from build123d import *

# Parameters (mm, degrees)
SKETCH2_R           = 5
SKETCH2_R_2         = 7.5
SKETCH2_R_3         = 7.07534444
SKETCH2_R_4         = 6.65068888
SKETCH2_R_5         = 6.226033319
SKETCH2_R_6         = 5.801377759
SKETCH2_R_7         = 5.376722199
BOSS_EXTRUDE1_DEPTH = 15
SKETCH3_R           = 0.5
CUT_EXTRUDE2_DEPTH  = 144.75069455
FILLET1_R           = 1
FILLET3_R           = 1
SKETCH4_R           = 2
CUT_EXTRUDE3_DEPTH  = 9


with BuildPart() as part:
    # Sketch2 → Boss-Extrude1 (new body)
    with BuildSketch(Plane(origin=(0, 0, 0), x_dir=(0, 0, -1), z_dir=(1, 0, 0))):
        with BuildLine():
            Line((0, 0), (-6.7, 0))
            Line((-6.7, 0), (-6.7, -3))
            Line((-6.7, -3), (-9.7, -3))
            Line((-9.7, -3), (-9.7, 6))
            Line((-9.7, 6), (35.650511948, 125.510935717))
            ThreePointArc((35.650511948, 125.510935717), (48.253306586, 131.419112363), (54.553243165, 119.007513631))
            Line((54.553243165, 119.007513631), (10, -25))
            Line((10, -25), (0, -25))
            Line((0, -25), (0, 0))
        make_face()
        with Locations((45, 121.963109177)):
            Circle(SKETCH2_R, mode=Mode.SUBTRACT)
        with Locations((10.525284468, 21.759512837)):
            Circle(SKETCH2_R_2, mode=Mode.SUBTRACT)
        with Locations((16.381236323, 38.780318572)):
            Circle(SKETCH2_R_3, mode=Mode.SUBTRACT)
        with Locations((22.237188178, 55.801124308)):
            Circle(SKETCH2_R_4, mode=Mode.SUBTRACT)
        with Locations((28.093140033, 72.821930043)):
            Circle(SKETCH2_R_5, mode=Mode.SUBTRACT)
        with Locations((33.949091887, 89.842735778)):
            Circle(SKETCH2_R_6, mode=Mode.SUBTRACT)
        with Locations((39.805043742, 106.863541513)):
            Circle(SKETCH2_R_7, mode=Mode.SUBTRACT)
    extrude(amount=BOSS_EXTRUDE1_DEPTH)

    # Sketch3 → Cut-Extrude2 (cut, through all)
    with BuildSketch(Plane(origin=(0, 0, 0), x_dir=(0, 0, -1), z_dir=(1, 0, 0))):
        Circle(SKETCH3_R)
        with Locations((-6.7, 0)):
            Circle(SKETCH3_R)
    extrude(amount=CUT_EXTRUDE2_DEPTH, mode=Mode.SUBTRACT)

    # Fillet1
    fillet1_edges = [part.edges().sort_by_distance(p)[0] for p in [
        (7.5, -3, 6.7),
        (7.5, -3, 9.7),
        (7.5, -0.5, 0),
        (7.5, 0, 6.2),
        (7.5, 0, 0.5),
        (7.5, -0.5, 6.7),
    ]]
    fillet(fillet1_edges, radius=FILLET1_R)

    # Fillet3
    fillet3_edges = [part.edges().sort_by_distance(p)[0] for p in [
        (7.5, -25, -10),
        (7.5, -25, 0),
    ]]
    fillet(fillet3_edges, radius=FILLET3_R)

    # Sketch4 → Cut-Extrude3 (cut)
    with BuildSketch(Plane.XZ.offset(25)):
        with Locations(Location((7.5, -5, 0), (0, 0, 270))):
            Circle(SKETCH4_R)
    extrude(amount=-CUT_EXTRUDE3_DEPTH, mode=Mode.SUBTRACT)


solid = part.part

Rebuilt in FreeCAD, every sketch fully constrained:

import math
import FreeCAD as App
import Part
import Sketcher
from FreeCAD import Vector


def edges_at(feature, points):
    """Names of the edges that pass closest to the given points."""
    edges = feature.Shape.Edges
    near = lambda p: min(range(len(edges)), key=lambda i: edges[i].distToShape(Part.Vertex(*p))[0])
    return sorted({f"Edge{near(p) + 1}" for p in points})

doc = App.newDocument("Part")
params = doc.addObject("Spreadsheet::Sheet", "Params")
for row, (alias, value) in enumerate([
    ("sketch1_diameter", "15 mm"),
    ("sketch1_diameter2", "10 mm"),
    ("sketch1_radius", "10 mm"),
    ("sketch1_width", "25 mm"),
    ("sketch1_width2", "9 mm"),
    ("pad1_length", "15 mm"),
    ("sketch2_diameter", "1 mm"),
    ("fillet_radius", "1 mm"),
    ("fillet2_radius", "1 mm"),
    ("sketch3_diameter", "4 mm"),
    ("pocket2_length", "9 mm"),
], start=1):
    params.set(f"A{row}", alias)
    params.set(f"B{row}", "=" + value)
    params.setAlias(f"B{row}", alias)

body = doc.addObject("PartDesign::Body", "Body")

# Sketch on YZ plane
sketch1 = doc.addObject("Sketcher::SketchObject", "Sketch")
body.addObject(sketch1)
sketch1.AttachmentSupport = (doc.YZ_Plane, [""])
sketch1.MapMode = "FlatFace"
sketch1.addGeometry([
    Part.LineSegment(Vector(0, 6.7, 0), Vector(0, 0, 0)),  # 0
    Part.LineSegment(Vector(0, 0, 0), Vector(-25, 0, 0)),  # 1
    Part.LineSegment(Vector(-25, 0, 0), Vector(-25, -10, 0)),  # 2
    Part.LineSegment(Vector(-25, -10, 0), Vector(119, -54.6, 0)),  # 3
    Part.ArcOfCircle(Part.Circle(Vector(122, -45, 0), Vector(0, 0, 1), 10), math.radians(-107), math.radians(69)),  # 4
    Part.LineSegment(Vector(125.5, -35.7, 0), Vector(6, 9.7, 0)),  # 5
    Part.LineSegment(Vector(6, 9.7, 0), Vector(-3, 9.7, 0)),  # 6
    Part.LineSegment(Vector(-3, 9.7, 0), Vector(-3, 6.7, 0)),  # 7
    Part.LineSegment(Vector(-3, 6.7, 0), Vector(0, 6.7, 0)),  # 8
    Part.Circle(Vector(38.8, -16.4, 0), Vector(0, 0, 1), 7.1),  # 9
    Part.Circle(Vector(21.8, -10.5, 0), Vector(0, 0, 1), 7.5),  # 10
    Part.Circle(Vector(55.8, -22.2, 0), Vector(0, 0, 1), 6.7),  # 11
    Part.Circle(Vector(72.8, -28.1, 0), Vector(0, 0, 1), 6.2),  # 12
    Part.Circle(Vector(89.8, -33.9, 0), Vector(0, 0, 1), 5.8),  # 13
    Part.Circle(Vector(106.9, -39.8, 0), Vector(0, 0, 1), 5.4),  # 14
    Part.Circle(Vector(122, -45, 0), Vector(0, 0, 1), 5),  # 15
], False)
sketch1.addConstraint([
    Sketcher.Constraint("Coincident", 0, 2, 1, 1),
    Sketcher.Constraint("Coincident", 1, 2, 2, 1),
    Sketcher.Constraint("Coincident", 2, 2, 3, 1),
    Sketcher.Constraint("Tangent", 3, 2, 4, 1),
    Sketcher.Constraint("Tangent", 4, 2, 5, 1),
    Sketcher.Constraint("Coincident", 5, 2, 6, 1),
    Sketcher.Constraint("Coincident", 6, 2, 7, 1),
    Sketcher.Constraint("Coincident", 7, 2, 8, 1),
    Sketcher.Constraint("Coincident", 8, 2, 0, 1),
    Sketcher.Constraint("Vertical", 0),
    Sketcher.Constraint("Horizontal", 1),
    Sketcher.Constraint("Vertical", 2),
    Sketcher.Constraint("Horizontal", 6),
    Sketcher.Constraint("Vertical", 7),
    Sketcher.Constraint("Horizontal", 8),
    Sketcher.Constraint("Coincident", 0, 2, -1, 1),
    Sketcher.Constraint("Coincident", 15, 3, 4, 3),
    Sketcher.Constraint("Equal", 8, 7),
    Sketcher.Constraint("Diameter", 10, 15.0),
    Sketcher.Constraint("Diameter", 15, 10.0),
    Sketcher.Constraint("Radius", 4, 10.0),
    Sketcher.Constraint("DistanceX", 1, 2, 1, 1, 25.0),
    Sketcher.Constraint("DistanceX", 6, 2, 6, 1, 9.0),
    Sketcher.Constraint("DistanceX", 8, 1, 8, 2, 3.0),
    Sketcher.Constraint("DistanceY", 2, 2, 2, 1, 10.0),
    Sketcher.Constraint("DistanceY", 0, 2, 0, 1, 6.7),
    Sketcher.Constraint("DistanceY", 4, 3, -1, 1, 45.0),
    Sketcher.Constraint("Diameter", 9, 14.150689),
    Sketcher.Constraint("Diameter", 11, 13.301378),
    Sketcher.Constraint("Diameter", 12, 12.452067),
    Sketcher.Constraint("Diameter", 13, 11.602756),
    Sketcher.Constraint("Diameter", 14, 10.753444),
    Sketcher.Constraint("DistanceY", 3, 2, 14, 3, 14.748199),
    Sketcher.Constraint("DistanceX", 13, 3, 4, 2, 35.6682),
    Sketcher.Constraint("Distance", 5, 127.826182),
    Sketcher.Constraint("DistanceX", -1, 1, 9, 3, 38.780319),
    Sketcher.Constraint("DistanceY", 11, 3, -1, 1, 22.237188),
    Sketcher.Constraint("DistanceX", -1, 1, 12, 3, 72.82193),
    Sketcher.Constraint("DistanceY", 12, 3, -1, 1, 28.09314),
    Sketcher.Constraint("DistanceY", 13, 3, -1, 1, 33.949092),
    Sketcher.Constraint("DistanceX", -1, 1, 14, 3, 106.863542),
    Sketcher.Constraint("DistanceY", 9, 3, 10, 3, 5.855952),
    Sketcher.Constraint("DistanceY", 11, 3, 9, 3, 5.855952),
    Sketcher.Constraint("DistanceX", 10, 3, 11, 3, 34.041611),
    Sketcher.Constraint("DistanceX", 11, 3, 13, 3, 34.041611),
])
sketch1.setExpression("Constraints[18]", "Params.sketch1_diameter")
sketch1.setExpression("Constraints[19]", "Params.sketch1_diameter2")
sketch1.setExpression("Constraints[20]", "Params.sketch1_radius")
sketch1.setExpression("Constraints[21]", "Params.sketch1_width")
sketch1.setExpression("Constraints[22]", "Params.sketch1_width2")
pad1 = doc.addObject("PartDesign::Pad", "Pad")
body.addObject(pad1)
pad1.Profile = sketch1
pad1.setExpression("Length", "Params.pad1_length")

# Sketch on YZ plane
sketch2 = doc.addObject("Sketcher::SketchObject", "Sketch001")
body.addObject(sketch2)
sketch2.AttachmentSupport = (doc.YZ_Plane, [""])
sketch2.MapMode = "FlatFace"
sketch2.addGeometry([
    Part.Circle(Vector(0, 0, 0), Vector(0, 0, 1), 0.5),
    Part.Circle(Vector(0, 6.7, 0), Vector(0, 0, 1), 0.5),
], False)
sketch2.addConstraint([
    Sketcher.Constraint("Coincident", 0, 3, -1, 1),
    Sketcher.Constraint("Equal", 0, 1),
    Sketcher.Constraint("PointOnObject", 1, 3, -2),
    Sketcher.Constraint("Diameter", 0, 1.0),
    Sketcher.Constraint("DistanceY", -1, 1, 1, 3, 6.7),
])
sketch2.setExpression("Constraints[3]", "Params.sketch2_diameter")
pocket1 = doc.addObject("PartDesign::Pocket", "Pocket")
body.addObject(pocket1)
pocket1.Profile = sketch2
pocket1.Type = "ThroughAll"
pocket1.Reversed = True
doc.recompute()

fillet = doc.addObject("PartDesign::Fillet", "Fillet")
body.addObject(fillet)
fillet.Base = (pocket1, edges_at(pocket1, [
    (7.5, -3, 6.7),
    (7.5, -3, 9.7),
    (7.5, -0.5, 0),
    (7.5, 0, 6.2),
    (7.5, 0, 0.5),
    (7.5, -0.5, 6.7),
]))
fillet.setExpression("Radius", "Params.fillet_radius")
doc.recompute()

fillet2 = doc.addObject("PartDesign::Fillet", "Fillet001")
body.addObject(fillet2)
fillet2.Base = (fillet, edges_at(fillet, [(7.5, -25, -10), (7.5, -25, 0)]))
fillet2.setExpression("Radius", "Params.fillet2_radius")

# Sketch on XZ plane
sketch3 = doc.addObject("Sketcher::SketchObject", "Sketch002")
body.addObject(sketch3)
sketch3.AttachmentSupport = (doc.XZ_Plane, [""])
sketch3.MapMode = "FlatFace"
sketch3.AttachmentOffset = App.Placement(Vector(0, 0, 25), App.Rotation())
sketch3.addGeometry(Part.Circle(Vector(7.5, -5, 0), Vector(0, 0, 1), 2), False)
sketch3.addConstraint([
    Sketcher.Constraint("Diameter", 0, 4.0),
    Sketcher.Constraint("DistanceY", 0, 3, -1, 1, 5.0),
    Sketcher.Constraint("DistanceX", -1, 1, 0, 3, 7.5),
])
sketch3.setExpression("Constraints[0]", "Params.sketch3_diameter")
pocket2 = doc.addObject("PartDesign::Pocket", "Pocket001")
body.addObject(pocket2)
pocket2.Profile = sketch3
pocket2.setExpression("Length", "Params.pocket2_length")

doc.recompute()
